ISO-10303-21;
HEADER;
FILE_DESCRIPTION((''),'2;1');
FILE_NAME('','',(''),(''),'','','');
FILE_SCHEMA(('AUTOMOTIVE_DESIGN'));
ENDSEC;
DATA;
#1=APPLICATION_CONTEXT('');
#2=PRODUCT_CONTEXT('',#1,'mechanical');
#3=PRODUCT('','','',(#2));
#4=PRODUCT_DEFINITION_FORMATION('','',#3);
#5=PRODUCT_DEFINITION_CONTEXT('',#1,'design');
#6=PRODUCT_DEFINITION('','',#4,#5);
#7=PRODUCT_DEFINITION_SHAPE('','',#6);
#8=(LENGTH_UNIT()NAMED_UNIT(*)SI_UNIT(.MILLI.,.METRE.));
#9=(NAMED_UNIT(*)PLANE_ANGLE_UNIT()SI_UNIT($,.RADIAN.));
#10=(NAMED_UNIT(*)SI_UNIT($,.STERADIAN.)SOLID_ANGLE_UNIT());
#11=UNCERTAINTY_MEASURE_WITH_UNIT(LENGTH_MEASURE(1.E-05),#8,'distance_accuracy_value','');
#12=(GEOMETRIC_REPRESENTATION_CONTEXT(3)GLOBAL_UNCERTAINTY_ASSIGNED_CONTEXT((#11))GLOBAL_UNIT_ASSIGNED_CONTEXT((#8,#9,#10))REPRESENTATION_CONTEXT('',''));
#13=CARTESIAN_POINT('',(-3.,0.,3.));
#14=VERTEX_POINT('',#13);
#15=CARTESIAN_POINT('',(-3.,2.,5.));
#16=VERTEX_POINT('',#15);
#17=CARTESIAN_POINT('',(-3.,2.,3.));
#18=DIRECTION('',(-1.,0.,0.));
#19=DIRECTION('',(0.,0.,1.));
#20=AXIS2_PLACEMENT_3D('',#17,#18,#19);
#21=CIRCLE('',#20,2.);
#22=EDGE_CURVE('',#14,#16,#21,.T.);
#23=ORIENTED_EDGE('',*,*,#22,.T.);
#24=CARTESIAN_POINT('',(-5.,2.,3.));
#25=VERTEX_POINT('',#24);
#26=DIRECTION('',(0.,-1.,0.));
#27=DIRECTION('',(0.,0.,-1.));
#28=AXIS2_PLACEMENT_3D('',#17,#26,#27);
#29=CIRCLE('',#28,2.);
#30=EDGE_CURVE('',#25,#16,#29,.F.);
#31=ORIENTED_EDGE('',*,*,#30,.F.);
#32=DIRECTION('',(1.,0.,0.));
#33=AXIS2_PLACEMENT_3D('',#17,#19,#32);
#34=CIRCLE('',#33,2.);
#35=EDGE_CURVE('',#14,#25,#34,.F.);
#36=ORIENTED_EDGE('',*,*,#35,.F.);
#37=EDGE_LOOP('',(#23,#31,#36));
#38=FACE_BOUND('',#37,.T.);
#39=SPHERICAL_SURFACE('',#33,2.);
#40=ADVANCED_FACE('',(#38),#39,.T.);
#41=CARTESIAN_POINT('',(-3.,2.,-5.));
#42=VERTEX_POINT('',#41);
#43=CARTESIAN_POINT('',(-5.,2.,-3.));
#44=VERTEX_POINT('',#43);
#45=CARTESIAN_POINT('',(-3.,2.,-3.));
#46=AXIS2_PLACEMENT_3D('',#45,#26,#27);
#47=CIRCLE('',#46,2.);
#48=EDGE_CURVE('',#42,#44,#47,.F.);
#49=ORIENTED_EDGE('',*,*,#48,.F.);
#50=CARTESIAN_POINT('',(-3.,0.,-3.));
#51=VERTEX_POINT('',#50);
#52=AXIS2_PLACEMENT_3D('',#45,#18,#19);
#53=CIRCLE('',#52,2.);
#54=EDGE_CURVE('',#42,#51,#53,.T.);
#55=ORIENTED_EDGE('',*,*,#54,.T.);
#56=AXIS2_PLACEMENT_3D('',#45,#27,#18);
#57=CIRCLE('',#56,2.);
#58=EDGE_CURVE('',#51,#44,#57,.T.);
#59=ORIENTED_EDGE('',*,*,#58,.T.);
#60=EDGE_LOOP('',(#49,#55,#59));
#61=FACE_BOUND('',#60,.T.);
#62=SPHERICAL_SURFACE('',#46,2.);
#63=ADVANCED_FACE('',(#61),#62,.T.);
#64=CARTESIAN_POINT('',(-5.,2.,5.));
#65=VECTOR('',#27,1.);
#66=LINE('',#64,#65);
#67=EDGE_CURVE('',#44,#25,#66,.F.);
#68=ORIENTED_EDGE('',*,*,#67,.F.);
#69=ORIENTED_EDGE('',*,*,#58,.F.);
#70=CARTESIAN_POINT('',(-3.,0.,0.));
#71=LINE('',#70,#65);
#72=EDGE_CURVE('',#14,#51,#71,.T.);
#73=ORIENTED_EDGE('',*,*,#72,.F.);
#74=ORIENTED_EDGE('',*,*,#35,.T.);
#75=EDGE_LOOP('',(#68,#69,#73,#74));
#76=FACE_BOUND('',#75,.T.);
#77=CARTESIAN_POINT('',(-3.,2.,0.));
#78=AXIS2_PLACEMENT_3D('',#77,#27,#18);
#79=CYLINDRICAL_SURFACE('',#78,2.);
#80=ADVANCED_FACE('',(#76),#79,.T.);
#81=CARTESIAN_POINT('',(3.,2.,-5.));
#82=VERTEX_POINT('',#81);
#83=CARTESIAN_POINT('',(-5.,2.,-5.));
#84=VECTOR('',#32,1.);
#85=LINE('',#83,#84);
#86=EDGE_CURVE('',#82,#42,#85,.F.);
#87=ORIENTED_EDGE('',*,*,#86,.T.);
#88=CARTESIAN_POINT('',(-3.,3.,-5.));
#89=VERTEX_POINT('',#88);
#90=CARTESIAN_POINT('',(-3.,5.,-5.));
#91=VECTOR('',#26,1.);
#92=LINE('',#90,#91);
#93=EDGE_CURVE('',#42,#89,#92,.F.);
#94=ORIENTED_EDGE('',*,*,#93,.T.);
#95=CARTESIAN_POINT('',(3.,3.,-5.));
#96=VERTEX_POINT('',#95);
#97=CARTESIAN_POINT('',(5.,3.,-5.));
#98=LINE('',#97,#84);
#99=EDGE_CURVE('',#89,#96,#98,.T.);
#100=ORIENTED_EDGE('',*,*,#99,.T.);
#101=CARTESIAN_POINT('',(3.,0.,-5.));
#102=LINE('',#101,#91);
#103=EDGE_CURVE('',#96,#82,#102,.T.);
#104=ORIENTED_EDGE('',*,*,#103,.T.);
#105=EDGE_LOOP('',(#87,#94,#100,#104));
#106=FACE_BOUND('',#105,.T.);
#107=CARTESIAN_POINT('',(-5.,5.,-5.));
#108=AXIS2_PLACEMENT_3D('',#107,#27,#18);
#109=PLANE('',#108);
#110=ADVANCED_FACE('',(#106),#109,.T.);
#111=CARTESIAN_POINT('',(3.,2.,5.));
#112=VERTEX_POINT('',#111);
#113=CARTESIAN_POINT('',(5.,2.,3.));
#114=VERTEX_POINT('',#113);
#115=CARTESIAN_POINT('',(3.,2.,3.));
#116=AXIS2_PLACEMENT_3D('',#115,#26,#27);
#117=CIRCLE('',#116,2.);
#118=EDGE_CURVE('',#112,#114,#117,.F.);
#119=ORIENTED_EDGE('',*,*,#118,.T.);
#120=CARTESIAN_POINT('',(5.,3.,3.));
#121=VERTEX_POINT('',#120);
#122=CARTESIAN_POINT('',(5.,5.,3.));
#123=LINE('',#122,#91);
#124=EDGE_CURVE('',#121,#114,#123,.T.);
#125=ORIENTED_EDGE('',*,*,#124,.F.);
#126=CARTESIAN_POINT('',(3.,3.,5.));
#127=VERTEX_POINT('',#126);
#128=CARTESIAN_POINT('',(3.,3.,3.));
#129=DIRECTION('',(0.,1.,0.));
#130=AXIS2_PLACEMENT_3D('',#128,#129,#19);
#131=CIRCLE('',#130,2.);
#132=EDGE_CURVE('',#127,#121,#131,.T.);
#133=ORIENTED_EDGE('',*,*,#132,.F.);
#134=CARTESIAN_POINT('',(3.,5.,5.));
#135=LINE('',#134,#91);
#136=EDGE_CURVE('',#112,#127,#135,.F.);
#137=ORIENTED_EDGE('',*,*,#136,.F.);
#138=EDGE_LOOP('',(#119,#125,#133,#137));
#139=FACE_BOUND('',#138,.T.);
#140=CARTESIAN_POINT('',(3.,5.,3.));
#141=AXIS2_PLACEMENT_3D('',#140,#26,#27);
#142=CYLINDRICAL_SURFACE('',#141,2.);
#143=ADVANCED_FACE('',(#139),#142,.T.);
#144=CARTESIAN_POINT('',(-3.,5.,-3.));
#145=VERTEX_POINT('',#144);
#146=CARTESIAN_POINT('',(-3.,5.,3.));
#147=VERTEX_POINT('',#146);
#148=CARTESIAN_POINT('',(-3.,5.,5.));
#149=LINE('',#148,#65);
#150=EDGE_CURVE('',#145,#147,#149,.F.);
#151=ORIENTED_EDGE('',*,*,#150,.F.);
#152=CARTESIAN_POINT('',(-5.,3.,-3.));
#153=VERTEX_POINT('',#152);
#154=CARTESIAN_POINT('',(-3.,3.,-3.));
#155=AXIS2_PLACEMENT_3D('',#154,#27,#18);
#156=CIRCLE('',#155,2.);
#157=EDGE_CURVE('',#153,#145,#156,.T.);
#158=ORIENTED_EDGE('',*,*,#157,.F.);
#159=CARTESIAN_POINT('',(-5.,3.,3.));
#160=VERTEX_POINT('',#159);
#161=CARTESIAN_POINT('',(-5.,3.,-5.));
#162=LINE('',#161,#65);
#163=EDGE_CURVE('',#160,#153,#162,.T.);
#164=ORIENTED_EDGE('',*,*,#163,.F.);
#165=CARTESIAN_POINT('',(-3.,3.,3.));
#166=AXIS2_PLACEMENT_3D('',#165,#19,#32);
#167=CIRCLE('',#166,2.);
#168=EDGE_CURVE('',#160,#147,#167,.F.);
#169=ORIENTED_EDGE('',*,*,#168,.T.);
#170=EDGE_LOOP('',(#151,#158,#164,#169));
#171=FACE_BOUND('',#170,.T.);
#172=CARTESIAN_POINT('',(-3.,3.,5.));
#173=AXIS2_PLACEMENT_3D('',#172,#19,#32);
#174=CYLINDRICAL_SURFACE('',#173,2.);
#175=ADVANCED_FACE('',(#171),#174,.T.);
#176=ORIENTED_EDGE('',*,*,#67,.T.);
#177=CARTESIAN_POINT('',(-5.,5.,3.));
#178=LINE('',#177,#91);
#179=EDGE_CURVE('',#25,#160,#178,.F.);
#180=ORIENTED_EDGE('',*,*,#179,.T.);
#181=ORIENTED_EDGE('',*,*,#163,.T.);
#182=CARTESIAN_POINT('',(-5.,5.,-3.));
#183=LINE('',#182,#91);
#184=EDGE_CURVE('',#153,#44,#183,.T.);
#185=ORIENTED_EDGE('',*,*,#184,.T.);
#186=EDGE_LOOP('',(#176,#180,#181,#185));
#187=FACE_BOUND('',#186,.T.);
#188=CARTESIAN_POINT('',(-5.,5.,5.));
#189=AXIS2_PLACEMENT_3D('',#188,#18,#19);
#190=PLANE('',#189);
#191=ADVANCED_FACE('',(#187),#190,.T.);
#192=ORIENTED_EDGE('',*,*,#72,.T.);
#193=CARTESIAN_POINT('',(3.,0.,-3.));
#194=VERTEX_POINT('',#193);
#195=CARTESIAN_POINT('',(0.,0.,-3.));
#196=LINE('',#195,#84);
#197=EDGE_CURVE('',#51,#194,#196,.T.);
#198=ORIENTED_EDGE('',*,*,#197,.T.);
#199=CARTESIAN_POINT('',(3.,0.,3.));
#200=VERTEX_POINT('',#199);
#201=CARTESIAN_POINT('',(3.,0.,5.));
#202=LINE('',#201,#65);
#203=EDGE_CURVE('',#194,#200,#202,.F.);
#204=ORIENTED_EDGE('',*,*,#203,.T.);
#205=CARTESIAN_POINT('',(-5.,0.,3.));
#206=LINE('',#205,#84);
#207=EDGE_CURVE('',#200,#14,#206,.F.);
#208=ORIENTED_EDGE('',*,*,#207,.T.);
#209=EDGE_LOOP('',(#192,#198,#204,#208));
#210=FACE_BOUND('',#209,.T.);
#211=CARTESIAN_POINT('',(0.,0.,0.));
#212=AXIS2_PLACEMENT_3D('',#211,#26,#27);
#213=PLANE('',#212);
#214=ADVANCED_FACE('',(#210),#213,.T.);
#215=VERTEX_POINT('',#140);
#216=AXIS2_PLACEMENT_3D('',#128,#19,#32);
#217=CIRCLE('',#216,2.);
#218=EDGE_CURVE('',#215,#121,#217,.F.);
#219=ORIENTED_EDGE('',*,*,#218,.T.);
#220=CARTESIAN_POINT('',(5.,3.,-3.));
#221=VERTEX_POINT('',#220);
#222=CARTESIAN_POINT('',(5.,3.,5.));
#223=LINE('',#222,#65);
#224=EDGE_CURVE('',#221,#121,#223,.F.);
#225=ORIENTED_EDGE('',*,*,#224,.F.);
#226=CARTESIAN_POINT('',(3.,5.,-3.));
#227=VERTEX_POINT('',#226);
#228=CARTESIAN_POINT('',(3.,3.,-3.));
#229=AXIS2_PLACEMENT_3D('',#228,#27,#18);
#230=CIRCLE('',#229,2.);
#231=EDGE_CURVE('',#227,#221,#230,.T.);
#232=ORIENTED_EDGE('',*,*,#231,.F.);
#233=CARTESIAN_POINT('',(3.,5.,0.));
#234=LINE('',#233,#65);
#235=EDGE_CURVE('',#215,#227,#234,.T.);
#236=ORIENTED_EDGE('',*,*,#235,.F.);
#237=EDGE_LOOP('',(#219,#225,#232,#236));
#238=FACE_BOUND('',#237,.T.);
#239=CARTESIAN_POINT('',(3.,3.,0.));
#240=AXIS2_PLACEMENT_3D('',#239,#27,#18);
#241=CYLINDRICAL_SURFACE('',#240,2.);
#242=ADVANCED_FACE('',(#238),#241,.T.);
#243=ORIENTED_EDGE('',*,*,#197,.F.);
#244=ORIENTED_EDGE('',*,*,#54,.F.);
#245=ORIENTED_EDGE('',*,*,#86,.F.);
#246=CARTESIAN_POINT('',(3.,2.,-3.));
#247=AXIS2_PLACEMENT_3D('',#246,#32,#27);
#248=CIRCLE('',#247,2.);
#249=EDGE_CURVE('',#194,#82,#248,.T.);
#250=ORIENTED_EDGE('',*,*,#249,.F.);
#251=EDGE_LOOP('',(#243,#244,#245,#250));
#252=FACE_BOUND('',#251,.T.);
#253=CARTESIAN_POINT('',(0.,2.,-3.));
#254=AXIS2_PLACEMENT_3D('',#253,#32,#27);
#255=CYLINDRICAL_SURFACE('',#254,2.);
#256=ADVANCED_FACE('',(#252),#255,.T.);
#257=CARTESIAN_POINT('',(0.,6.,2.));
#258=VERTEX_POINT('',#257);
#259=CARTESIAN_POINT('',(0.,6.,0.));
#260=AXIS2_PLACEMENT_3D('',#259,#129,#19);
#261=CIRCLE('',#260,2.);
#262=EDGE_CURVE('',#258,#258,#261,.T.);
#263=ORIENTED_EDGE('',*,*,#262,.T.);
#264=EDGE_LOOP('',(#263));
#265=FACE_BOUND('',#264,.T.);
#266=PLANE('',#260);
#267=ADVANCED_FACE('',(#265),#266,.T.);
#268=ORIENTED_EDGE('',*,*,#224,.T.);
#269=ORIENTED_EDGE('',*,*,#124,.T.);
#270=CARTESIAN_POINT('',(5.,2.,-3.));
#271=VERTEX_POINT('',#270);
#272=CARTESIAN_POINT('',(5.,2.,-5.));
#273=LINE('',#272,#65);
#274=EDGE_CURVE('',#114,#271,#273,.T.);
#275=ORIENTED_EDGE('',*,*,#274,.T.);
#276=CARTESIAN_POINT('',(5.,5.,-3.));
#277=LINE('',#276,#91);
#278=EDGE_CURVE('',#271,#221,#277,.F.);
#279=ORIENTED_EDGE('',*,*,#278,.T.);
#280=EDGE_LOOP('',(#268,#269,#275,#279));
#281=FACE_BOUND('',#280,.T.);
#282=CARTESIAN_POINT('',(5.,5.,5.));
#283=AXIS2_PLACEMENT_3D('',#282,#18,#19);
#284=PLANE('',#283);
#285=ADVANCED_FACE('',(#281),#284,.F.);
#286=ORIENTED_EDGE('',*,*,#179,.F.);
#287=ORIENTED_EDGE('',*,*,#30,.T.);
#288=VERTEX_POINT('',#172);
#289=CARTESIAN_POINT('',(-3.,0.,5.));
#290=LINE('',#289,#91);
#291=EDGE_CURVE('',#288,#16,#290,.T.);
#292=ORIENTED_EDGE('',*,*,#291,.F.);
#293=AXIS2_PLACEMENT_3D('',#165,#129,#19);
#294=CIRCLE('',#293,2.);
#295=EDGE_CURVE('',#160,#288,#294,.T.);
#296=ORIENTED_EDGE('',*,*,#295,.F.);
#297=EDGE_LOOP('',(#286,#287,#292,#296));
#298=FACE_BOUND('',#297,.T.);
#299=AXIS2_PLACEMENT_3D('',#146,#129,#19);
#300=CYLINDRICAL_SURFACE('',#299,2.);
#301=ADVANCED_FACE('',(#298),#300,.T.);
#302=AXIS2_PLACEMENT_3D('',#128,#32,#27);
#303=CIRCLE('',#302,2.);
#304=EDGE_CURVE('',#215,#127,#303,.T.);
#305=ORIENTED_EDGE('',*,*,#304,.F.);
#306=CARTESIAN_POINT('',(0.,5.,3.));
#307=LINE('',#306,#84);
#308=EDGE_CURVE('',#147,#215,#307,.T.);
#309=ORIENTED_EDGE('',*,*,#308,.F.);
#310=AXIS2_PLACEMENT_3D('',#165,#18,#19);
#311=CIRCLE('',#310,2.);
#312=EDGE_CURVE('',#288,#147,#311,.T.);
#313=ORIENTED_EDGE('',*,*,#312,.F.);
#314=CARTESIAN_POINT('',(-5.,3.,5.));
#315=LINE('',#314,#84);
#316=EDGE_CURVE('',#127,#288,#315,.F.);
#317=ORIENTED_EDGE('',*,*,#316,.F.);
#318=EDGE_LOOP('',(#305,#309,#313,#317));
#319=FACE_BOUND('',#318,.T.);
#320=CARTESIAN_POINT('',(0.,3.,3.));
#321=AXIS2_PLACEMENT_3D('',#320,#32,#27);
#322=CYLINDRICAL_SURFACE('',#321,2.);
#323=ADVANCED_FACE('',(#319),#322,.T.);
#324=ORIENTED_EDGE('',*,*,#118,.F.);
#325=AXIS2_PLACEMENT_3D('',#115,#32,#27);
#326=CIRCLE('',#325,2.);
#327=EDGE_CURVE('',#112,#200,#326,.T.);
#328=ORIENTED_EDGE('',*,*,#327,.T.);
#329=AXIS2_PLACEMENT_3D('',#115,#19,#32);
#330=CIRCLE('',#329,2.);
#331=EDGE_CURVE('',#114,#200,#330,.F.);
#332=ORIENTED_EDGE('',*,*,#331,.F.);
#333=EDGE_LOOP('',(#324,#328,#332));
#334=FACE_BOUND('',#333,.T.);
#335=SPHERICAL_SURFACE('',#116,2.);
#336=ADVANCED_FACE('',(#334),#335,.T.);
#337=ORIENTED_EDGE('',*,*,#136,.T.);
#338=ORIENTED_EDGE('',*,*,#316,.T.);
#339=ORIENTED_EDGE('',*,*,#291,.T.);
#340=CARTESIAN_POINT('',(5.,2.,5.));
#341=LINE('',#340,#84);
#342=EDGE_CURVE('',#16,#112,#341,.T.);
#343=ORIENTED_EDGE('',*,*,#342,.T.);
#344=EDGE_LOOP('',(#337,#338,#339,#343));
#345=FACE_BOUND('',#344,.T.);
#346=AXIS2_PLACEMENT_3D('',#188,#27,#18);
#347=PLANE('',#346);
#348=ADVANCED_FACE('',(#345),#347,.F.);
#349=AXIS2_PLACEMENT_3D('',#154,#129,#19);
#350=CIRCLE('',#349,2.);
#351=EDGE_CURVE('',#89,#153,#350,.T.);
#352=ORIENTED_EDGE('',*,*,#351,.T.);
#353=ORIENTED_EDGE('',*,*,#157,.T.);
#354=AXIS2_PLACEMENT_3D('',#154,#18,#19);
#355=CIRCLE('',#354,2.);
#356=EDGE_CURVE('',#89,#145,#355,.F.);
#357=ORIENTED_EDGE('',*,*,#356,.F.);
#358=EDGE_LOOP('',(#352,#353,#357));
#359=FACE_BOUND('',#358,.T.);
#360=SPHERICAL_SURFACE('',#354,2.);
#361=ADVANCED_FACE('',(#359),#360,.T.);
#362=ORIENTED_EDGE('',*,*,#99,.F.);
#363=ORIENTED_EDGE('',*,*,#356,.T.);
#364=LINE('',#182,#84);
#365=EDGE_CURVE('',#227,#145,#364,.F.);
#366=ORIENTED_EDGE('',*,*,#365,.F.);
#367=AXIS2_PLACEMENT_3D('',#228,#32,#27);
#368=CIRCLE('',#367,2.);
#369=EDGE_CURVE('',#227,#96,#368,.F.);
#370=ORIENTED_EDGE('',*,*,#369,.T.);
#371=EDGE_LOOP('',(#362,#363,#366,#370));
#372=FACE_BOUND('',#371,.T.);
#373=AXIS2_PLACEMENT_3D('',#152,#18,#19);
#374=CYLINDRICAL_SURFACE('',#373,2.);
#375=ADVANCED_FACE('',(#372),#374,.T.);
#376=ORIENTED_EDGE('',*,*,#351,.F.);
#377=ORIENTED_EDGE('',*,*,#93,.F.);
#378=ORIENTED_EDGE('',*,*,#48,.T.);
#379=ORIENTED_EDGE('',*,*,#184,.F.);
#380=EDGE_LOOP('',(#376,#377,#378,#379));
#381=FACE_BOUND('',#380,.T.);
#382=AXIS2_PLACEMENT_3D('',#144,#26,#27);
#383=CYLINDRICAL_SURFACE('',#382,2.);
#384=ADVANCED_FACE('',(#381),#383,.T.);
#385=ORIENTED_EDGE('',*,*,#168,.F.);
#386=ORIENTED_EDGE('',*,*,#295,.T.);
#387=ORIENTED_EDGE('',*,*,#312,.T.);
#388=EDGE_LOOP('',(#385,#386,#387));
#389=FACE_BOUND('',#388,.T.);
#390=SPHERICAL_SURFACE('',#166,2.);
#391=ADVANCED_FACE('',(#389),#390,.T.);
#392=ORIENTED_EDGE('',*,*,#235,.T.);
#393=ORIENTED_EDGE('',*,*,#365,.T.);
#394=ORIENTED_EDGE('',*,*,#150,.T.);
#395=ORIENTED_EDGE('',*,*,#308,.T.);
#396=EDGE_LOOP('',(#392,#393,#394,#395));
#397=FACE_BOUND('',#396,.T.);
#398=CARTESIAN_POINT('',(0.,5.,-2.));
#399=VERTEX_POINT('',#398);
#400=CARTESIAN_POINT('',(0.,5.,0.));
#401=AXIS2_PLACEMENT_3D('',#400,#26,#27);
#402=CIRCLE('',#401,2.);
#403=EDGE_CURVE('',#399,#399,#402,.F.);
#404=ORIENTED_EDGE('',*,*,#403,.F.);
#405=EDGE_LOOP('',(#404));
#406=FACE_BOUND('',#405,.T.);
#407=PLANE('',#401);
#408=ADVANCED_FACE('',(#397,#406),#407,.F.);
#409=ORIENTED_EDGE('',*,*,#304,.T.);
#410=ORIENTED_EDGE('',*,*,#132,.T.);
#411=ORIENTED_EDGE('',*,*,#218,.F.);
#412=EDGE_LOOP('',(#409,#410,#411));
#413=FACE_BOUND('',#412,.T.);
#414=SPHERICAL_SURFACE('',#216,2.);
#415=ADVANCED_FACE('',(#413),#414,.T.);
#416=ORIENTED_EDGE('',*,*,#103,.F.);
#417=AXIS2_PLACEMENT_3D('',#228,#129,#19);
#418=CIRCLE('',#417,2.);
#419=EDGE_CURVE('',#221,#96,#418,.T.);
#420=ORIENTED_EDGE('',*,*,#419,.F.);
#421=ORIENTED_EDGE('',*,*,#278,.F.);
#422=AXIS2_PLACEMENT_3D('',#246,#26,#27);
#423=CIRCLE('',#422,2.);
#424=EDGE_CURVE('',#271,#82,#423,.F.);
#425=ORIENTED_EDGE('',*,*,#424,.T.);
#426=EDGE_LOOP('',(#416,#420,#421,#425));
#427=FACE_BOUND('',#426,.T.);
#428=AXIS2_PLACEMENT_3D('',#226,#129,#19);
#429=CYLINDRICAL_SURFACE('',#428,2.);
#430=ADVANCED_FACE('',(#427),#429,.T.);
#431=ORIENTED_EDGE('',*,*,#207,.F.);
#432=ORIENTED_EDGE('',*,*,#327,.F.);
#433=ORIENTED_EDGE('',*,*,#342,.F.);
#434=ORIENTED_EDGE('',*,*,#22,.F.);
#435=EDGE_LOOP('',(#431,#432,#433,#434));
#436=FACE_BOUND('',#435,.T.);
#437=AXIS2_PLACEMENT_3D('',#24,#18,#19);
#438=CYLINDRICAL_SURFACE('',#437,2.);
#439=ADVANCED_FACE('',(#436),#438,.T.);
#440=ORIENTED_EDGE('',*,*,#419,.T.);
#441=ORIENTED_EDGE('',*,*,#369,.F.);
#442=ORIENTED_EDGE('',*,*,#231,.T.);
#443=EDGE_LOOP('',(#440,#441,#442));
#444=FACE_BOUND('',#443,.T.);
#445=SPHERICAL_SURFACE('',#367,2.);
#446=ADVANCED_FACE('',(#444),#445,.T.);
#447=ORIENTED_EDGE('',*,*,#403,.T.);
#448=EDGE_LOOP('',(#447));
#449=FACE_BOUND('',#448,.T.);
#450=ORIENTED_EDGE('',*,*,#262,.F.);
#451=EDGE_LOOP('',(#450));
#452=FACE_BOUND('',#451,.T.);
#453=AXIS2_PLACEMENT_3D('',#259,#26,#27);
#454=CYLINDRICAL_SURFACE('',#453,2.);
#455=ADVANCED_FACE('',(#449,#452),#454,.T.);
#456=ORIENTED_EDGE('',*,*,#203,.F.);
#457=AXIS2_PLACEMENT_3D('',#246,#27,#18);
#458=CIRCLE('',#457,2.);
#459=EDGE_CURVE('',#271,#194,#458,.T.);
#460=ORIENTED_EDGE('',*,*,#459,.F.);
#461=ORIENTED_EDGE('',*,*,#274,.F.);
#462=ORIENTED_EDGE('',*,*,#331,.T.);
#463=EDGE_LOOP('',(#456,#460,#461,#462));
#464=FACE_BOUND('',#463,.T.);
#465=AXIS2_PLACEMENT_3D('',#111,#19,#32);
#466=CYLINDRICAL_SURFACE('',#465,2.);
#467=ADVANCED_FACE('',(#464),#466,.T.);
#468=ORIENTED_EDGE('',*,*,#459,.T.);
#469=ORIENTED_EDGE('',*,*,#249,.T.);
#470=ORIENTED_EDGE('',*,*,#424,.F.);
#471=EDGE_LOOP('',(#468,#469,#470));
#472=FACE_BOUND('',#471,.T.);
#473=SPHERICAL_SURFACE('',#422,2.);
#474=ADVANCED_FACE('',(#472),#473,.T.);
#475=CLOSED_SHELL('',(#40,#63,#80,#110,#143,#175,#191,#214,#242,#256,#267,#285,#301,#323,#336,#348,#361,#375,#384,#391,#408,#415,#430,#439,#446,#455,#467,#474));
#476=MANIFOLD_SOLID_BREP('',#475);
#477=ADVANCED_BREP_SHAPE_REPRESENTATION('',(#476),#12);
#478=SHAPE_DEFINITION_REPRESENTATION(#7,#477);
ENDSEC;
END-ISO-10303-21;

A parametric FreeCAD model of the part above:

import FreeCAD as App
import Part
import Sketcher
from FreeCAD import Vector


def add_polygon(sketch, points):
    """Adds a closed chain of lines whose ends are joined by coincident constraints."""
    first, n = sketch.GeometryCount, len(points)
    for a, b in zip(points, points[1:] + points[:1]):
        sketch.addGeometry(Part.LineSegment(App.Vector(*a, 0), App.Vector(*b, 0)), False)
    for i in range(n):
        sketch.addConstraint(Sketcher.Constraint("Coincident", first + i, 2, first + (i + 1) % n, 1))

doc = App.newDocument("Part")
params = doc.addObject("Spreadsheet::Sheet", "Params")
for row, (alias, value) in enumerate([
    ("sketch1_width", "10 mm"),
    ("pad1_length", "5 mm"),
    ("fillet_radius", "2 mm"),
    ("sketch2_diameter", "4 mm"),
    ("pad2_length", "1 mm"),
], start=1):
    params.set(f"A{row}", alias)
    params.set(f"B{row}", "=" + value)
    params.setAlias(f"B{row}", alias)

body = doc.addObject("PartDesign::Body", "Body")

sketch1 = body.newObject("Sketcher::SketchObject", "Sketch")
sketch1.AttachmentSupport = (doc.getObject("XZ_Plane"), [""])
sketch1.MapMode = "FlatFace"
add_polygon(sketch1, [(-5, -5), (-5, 5), (5, 5), (5, -5)])
sketch1.addConstraint(Sketcher.Constraint("Vertical", 0))
sketch1.addConstraint(Sketcher.Constraint("Horizontal", 1))
sketch1.addConstraint(Sketcher.Constraint("Vertical", 2))
sketch1.addConstraint(Sketcher.Constraint("Horizontal", 3))
sketch1.addConstraint(Sketcher.Constraint("Symmetric", 0, 2, 2, 2, -1, 1))
sketch1.addConstraint(Sketcher.Constraint("Equal", 3, 0))
sketch1.addConstraint(Sketcher.Constraint("DistanceX", 1, 1, 1, 2, 10.0))
sketch1.setExpression("Constraints[10]", "Params.sketch1_width")
pad1 = body.newObject("PartDesign::Pad", "Pad")
pad1.Profile = sketch1
pad1.setExpression("Length", "Params.pad1_length")
pad1.Reversed = True
doc.recompute()

fillet = body.newObject("PartDesign::Fillet", "Fillet")
fillet.Base = (pad1, ["Edge1"])
fillet.UseAllEdges = True
fillet.setExpression("Radius", "Params.fillet_radius")

sketch2 = body.newObject("Sketcher::SketchObject", "Sketch001")
sketch2.AttachmentSupport = (doc.getObject("XZ_Plane"), [""])
sketch2.MapMode = "FlatFace"
sketch2.AttachmentOffset = App.Placement(Vector(0, 0, -5), App.Rotation())
sketch2.addGeometry(Part.Circle(Vector(0, 0, 0), Vector(0, 0, 1), 2), False)
sketch2.addConstraint(Sketcher.Constraint("Coincident", 0, 3, -1, 1))
sketch2.addConstraint(Sketcher.Constraint("Diameter", 0, 4.0))
sketch2.setExpression("Constraints[1]", "Params.sketch2_diameter")
pad2 = body.newObject("PartDesign::Pad", "Pad001")
pad2.Profile = sketch2
pad2.setExpression("Length", "Params.pad2_length")
pad2.Reversed = True

doc.recompute()
